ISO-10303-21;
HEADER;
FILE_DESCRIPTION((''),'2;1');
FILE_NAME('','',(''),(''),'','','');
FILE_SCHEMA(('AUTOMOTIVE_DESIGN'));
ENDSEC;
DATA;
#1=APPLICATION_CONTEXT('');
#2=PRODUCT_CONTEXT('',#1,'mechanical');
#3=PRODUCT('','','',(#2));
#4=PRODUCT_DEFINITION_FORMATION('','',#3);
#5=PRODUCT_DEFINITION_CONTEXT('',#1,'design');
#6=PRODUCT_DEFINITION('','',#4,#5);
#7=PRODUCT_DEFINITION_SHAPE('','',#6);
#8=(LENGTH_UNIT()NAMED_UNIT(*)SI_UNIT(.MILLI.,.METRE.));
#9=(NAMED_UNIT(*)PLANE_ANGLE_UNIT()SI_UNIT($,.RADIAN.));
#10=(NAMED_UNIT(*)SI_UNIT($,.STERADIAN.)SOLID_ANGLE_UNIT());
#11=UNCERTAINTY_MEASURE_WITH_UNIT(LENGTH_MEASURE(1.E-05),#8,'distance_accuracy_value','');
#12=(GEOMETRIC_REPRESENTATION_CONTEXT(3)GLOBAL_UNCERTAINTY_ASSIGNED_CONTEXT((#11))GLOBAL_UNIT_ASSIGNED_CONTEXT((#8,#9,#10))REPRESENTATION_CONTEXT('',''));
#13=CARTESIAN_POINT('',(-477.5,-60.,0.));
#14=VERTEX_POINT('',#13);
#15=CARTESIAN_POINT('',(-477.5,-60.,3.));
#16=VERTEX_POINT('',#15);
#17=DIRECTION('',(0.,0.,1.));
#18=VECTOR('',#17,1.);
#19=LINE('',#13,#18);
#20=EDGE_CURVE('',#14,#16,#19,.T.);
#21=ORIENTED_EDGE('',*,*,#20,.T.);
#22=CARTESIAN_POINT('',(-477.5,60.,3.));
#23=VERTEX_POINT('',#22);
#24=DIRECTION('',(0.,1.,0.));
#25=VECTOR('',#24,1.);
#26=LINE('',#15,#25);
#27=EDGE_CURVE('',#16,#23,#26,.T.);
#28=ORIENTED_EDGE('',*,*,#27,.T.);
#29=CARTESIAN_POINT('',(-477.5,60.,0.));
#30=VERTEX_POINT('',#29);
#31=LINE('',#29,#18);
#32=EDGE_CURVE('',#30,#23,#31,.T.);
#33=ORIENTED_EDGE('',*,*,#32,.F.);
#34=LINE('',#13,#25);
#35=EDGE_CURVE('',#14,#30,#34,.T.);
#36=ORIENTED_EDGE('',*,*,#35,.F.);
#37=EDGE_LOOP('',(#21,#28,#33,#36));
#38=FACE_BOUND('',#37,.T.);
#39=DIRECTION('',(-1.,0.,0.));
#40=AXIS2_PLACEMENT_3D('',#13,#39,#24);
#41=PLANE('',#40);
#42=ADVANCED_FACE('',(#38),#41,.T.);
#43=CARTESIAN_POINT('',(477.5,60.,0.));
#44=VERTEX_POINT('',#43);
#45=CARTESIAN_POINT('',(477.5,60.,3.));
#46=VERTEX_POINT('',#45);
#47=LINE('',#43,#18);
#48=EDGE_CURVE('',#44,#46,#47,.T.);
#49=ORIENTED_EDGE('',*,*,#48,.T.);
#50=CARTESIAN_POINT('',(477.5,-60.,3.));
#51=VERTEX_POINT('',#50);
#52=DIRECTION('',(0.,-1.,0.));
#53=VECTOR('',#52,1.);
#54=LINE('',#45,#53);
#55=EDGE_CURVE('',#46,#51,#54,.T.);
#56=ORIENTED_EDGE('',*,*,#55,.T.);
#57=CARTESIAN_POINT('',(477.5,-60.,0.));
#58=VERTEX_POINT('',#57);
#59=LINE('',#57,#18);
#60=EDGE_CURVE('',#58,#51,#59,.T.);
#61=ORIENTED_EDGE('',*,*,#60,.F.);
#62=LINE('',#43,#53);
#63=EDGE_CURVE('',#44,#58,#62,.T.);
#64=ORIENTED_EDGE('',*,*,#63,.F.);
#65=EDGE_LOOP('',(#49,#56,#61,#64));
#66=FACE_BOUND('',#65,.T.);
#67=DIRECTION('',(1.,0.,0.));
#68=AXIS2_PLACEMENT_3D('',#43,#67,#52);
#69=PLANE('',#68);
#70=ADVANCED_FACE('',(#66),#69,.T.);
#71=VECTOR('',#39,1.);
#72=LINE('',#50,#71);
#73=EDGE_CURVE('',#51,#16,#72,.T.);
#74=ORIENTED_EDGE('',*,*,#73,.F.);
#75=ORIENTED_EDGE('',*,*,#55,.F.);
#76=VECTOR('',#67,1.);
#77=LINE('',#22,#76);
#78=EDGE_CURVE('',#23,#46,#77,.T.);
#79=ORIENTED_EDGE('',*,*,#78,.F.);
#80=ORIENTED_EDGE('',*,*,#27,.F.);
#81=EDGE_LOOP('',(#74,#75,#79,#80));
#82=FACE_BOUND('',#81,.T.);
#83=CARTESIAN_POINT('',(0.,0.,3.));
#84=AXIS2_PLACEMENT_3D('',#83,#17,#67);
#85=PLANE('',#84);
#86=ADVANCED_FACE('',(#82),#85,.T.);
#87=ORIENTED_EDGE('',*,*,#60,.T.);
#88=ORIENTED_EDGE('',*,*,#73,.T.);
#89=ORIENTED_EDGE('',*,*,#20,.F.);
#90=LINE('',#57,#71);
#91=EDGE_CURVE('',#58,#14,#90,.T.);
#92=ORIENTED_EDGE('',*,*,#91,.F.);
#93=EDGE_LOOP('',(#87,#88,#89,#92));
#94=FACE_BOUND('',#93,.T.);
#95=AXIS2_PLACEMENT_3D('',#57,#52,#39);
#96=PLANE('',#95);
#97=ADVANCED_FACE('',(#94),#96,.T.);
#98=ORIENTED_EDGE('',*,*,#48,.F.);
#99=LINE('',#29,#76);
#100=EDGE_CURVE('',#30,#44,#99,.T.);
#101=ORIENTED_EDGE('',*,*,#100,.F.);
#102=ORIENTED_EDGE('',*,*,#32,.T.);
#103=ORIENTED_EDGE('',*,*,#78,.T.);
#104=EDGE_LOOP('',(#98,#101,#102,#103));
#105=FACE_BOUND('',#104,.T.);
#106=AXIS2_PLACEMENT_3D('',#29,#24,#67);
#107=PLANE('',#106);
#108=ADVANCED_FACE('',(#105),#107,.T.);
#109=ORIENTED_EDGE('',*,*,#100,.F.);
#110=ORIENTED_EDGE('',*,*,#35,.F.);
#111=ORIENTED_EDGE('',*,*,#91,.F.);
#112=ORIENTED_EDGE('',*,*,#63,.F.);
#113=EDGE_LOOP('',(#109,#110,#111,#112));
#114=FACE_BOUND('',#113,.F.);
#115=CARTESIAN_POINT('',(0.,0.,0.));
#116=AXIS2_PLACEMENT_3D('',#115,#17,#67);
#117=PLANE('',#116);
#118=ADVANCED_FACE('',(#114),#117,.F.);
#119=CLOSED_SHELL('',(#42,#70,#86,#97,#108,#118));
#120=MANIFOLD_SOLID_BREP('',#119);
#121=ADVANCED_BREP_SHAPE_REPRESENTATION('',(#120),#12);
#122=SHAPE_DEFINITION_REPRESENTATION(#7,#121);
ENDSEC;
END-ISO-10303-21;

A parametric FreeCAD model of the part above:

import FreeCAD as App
import Part
import Sketcher
Q = App.Units.Quantity

doc = App.newDocument("Part")
params = doc.addObject("Spreadsheet::Sheet", "Params")
for row, (alias, value) in enumerate([
    ("sketch1_width", "955 mm"),
    ("sketch1_height", "120 mm"),
    ("pad1_length", "3 mm"),
], start=1):
    params.set(f"A{row}", alias)
    params.set(f"B{row}", "=" + value)
    params.setAlias(f"B{row}", alias)

body = doc.addObject("PartDesign::Body", "Body")

sketch1 = doc.addObject("Sketcher::SketchObject", "Sketch")
body.addObject(sketch1)
sketch1.AttachmentSupport = (doc.XY_Plane, [""])
sketch1.MapMode = "FlatFace"
sketch1.addGeometry(Part.LineSegment(App.Vector(-478, -60, 0), App.Vector(478, -60, 0)), False)
sketch1.addGeometry(Part.LineSegment(App.Vector(478, -60, 0), App.Vector(478, 60, 0)), False)
sketch1.addGeometry(Part.LineSegment(App.Vector(478, 60, 0), App.Vector(-478, 60, 0)), False)
sketch1.addGeometry(Part.LineSegment(App.Vector(-478, 60, 0), App.Vector(-478, -60, 0)), False)
sketch1.addConstraint(Sketcher.Constraint("Coincident", 0, 2, 1, 1))
sketch1.addConstraint(Sketcher.Constraint("Coincident", 1, 2, 2, 1))
sketch1.addConstraint(Sketcher.Constraint("Coincident", 2, 2, 3, 1))
sketch1.addConstraint(Sketcher.Constraint("Coincident", 3, 2, 0, 1))
sketch1.addConstraint(Sketcher.Constraint("Horizontal", 0))
sketch1.addConstraint(Sketcher.Constraint("Vertical", 1))
sketch1.addConstraint(Sketcher.Constraint("Horizontal", 2))
sketch1.addConstraint(Sketcher.Constraint("Vertical", 3))
sketch1.addConstraint(Sketcher.Constraint("Symmetric", 0, 2, 2, 2, -1, 1))
sketch1.addConstraint(Sketcher.Constraint("DistanceX", 0, 1, 0, 2, Q("955 mm")))
sketch1.addConstraint(Sketcher.Constraint("DistanceY", 1, 1, 1, 2, Q("120 mm")))
sketch1.setExpression("Constraints[9]", "Params.sketch1_width")
sketch1.setExpression("Constraints[10]", "Params.sketch1_height")
pad1 = doc.addObject("PartDesign::Pad", "Pad")
body.addObject(pad1)
pad1.Profile = sketch1
pad1.setExpression("Length", "Params.pad1_length")

doc.recompute()
